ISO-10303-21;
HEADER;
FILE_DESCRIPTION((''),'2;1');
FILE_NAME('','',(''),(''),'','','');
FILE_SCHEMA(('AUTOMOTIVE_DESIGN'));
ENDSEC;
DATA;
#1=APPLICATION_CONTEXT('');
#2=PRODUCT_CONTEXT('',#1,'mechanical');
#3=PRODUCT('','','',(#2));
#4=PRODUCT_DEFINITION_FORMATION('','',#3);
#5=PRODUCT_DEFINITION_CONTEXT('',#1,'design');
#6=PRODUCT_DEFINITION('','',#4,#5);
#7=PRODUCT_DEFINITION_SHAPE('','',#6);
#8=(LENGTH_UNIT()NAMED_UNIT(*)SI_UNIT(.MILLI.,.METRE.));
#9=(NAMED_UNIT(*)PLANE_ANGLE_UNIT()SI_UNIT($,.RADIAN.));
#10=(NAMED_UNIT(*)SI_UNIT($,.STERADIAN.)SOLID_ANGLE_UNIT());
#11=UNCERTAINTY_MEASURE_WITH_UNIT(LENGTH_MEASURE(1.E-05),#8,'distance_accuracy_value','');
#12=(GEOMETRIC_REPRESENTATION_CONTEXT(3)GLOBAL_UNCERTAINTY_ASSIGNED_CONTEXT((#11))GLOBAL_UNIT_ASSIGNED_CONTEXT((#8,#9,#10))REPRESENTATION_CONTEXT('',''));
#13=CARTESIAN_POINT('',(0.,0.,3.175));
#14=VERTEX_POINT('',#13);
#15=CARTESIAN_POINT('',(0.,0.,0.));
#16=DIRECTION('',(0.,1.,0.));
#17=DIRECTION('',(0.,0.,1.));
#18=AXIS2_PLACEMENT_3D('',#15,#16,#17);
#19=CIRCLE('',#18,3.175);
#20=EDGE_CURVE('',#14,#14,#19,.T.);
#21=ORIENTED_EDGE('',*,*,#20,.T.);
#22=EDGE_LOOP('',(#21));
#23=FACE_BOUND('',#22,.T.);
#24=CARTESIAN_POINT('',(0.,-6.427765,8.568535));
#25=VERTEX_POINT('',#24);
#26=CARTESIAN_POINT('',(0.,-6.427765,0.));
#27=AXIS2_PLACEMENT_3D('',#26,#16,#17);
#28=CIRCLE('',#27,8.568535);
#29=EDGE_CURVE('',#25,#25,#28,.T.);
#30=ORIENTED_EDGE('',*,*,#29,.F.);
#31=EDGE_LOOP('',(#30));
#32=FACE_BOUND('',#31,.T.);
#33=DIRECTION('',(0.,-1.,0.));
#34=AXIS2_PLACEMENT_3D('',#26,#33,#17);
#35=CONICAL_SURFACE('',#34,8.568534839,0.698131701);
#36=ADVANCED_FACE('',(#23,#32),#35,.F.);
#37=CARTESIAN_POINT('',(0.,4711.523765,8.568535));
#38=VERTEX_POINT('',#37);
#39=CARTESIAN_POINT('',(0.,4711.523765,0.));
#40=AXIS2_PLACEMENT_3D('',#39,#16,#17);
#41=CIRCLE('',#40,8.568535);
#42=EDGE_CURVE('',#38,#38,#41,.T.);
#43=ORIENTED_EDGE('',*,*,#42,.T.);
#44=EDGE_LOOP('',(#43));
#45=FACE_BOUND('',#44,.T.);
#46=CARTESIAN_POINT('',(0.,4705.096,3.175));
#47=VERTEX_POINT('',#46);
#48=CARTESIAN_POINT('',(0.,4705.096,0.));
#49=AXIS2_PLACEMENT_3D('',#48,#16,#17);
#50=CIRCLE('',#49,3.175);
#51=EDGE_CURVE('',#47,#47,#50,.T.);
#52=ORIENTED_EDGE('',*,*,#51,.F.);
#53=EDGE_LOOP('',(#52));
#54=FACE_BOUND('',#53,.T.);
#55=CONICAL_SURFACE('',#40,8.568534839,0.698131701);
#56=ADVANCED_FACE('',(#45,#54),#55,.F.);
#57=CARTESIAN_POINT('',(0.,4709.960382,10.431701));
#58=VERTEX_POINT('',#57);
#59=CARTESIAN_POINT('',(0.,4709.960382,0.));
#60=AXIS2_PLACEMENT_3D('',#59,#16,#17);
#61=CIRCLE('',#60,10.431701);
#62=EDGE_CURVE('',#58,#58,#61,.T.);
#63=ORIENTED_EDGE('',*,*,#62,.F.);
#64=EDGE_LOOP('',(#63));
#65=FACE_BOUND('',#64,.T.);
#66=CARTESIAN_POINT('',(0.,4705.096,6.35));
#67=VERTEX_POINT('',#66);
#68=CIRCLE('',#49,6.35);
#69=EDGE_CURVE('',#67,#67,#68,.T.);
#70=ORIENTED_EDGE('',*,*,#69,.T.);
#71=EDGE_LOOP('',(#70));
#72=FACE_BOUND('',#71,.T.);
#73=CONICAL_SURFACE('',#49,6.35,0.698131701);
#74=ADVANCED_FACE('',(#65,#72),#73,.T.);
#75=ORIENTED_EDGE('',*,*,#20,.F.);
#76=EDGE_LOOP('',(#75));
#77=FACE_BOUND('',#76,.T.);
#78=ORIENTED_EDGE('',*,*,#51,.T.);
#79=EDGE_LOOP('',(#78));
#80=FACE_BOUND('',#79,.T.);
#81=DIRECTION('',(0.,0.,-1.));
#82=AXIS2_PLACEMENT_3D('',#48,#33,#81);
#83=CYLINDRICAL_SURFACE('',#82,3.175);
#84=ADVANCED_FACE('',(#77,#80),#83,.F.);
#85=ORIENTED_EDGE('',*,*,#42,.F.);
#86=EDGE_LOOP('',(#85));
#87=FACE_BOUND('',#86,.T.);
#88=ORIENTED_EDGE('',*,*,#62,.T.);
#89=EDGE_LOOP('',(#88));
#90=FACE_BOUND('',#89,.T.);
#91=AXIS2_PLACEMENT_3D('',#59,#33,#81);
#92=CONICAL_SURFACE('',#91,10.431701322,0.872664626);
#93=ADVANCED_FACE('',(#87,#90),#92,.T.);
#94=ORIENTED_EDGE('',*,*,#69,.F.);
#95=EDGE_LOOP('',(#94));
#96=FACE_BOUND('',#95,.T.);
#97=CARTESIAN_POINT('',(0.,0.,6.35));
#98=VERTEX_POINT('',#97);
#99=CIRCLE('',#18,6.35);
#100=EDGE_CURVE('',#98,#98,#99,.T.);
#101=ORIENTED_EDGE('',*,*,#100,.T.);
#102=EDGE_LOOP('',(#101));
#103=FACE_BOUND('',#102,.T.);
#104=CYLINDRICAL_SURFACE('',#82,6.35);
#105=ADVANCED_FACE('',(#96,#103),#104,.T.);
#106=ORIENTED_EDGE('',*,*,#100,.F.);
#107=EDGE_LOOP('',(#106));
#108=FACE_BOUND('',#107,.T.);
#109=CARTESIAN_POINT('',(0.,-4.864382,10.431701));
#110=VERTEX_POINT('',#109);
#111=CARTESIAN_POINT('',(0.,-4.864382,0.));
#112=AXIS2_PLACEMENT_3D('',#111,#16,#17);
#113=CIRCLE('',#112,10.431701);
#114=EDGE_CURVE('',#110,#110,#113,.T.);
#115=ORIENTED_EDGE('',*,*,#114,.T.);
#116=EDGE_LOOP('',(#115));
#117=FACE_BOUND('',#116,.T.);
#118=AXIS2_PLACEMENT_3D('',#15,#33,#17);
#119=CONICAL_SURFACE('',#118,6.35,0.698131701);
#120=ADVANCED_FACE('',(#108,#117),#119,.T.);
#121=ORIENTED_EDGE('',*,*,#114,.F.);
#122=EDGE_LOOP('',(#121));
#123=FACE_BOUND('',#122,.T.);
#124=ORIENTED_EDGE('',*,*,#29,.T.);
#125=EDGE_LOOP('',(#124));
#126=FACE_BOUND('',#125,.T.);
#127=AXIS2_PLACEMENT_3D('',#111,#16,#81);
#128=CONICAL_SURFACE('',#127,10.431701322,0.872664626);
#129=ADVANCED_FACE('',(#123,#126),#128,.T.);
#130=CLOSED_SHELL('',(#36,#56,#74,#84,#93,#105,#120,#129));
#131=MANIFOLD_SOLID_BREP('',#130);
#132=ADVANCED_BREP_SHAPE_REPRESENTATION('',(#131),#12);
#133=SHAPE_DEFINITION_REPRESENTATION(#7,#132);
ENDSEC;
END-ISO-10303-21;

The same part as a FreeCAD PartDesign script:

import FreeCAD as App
import Part
import Sketcher
from FreeCAD import Vector
Q = App.Units.Quantity

doc = App.newDocument("Part")
body = doc.addObject("PartDesign::Body", "Body")

sketch1 = body.newObject("Sketcher::SketchObject", "Sketch")
sketch1.AttachmentSupport = (doc.getObject("XZ_Plane"), [""])
sketch1.MapMode = "FlatFace"
sketch1.addGeometry([
    Part.Circle(Vector(0, 0, 0), Vector(0, 0, 1), 6.3),
    Part.Circle(Vector(0, 0, 0), Vector(0, 0, 1), 3.2),
], False)
sketch1.addConstraint([
    Sketcher.Constraint("Coincident", 0, 3, -1, 1),
    Sketcher.Constraint("Coincident", 1, 3, -1, 1),
    Sketcher.Constraint("Diameter", 0, Q("0.5 in")),
    Sketcher.Constraint("Diameter", 1, Q("0.25 in")),
])
pad1 = body.newObject("PartDesign::Pad", "Pad")
pad1.Profile = sketch1
pad1.Length = Q("185.24 in")
pad1.Reversed = True

sketch2 = body.newObject("Sketcher::SketchObject", "Sketch001")
sketch2.AttachmentSupport = (doc.getObject("XY_Plane"), [""])
sketch2.MapMode = "FlatFace"
sketch2.addGeometry([
    Part.LineSegment(Vector(6.3, 4705.1, 0), Vector(10.4, 4710, 0)),
    Part.LineSegment(Vector(10.4, 4710, 0), Vector(8.6, 4711.5, 0)),
    Part.LineSegment(Vector(8.6, 4711.5, 0), Vector(3.2, 4705.1, 0)),
    Part.LineSegment(Vector(3.2, 4705.1, 0), Vector(6.3, 4705.1, 0)),
], False)
sketch2.addConstraint([
    Sketcher.Constraint("Coincident", 0, 2, 1, 1),
    Sketcher.Constraint("Coincident", 1, 2, 2, 1),
    Sketcher.Constraint("Coincident", 2, 2, 3, 1),
    Sketcher.Constraint("Coincident", 3, 2, 0, 1),
    Sketcher.Constraint("Horizontal", 3),
    Sketcher.Constraint("Perpendicular", 0, 1),
    Sketcher.Constraint("Perpendicular", 1, 2),
    Sketcher.Constraint("Angle", 0, Q("50 deg")),
    Sketcher.Constraint("Distance", 0, Q("0.25 in")),
    Sketcher.Constraint("DistanceX", 3, 1, 3, 2, Q("0.125 in")),
    Sketcher.Constraint("DistanceY", -1, 1, 2, 2, Q("185.24 in")),
    Sketcher.Constraint("DistanceX", -1, 1, 3, 2, Q("0.25 in")),
])
revolution = body.newObject("PartDesign::Revolution", "Revolution")
revolution.Profile = sketch2
revolution.ReferenceAxis = (sketch2, ["V_Axis"])
revolution.Angle = 360
doc.recompute()

datumplane = body.newObject("PartDesign::Plane", "DatumPlane")
datumplane.AttachmentSupport = (doc.getObject("XZ_Plane"), [""])
datumplane.MapMode = "FlatFace"
datumplane.AttachmentOffset = App.Placement(Vector(0, 0, -92.62 * 25.4), App.Rotation())
mirrored = body.newObject("PartDesign::Mirrored", "Mirrored")
mirrored.Originals = [revolution]
mirrored.MirrorPlane = (datumplane, [""])
body.Tip = mirrored

doc.recompute()
